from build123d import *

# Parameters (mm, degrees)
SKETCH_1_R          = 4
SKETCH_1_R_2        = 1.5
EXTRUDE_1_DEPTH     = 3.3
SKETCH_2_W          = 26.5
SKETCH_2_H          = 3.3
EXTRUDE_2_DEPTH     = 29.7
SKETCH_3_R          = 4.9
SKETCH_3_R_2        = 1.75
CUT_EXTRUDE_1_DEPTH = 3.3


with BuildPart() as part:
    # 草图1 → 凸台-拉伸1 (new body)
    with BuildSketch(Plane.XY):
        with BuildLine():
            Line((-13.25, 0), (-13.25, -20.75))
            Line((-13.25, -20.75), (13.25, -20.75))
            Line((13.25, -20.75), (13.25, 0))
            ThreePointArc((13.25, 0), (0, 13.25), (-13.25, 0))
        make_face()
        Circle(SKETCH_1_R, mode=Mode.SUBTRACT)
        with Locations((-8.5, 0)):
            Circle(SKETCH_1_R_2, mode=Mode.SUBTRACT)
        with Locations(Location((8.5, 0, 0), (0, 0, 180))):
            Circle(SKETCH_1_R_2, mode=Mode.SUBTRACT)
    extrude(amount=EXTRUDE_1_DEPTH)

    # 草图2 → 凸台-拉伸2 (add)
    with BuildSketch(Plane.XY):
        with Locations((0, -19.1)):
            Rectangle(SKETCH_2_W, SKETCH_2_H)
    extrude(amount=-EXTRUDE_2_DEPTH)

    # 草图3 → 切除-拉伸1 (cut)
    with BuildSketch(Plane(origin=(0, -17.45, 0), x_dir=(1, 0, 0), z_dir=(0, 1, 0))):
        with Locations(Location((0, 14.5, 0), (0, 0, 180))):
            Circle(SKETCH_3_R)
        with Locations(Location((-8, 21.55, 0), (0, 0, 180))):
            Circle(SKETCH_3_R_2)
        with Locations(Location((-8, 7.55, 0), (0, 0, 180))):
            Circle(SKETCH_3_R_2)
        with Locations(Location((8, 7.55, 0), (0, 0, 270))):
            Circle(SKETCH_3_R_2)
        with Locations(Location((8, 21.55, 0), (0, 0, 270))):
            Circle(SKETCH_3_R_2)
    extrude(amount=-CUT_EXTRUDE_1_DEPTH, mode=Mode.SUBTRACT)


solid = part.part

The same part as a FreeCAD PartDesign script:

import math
import FreeCAD as App
import Part
import Sketcher

doc = App.newDocument("Part")
body = doc.addObject("PartDesign::Body", "Body")

# Sketch on XY plane
sketch1 = body.newObject("Sketcher::SketchObject", "Sketch")
sketch1.AttachmentSupport = (doc.getObject("XY_Plane"), [""])
sketch1.MapMode = "FlatFace"
sketch1.addGeometry([
    Part.LineSegment(App.Vector(-13.25, 0, 0), App.Vector(-13.25, -20.75, 0)),  # 0
    Part.LineSegment(App.Vector(-13.25, -20.75, 0), App.Vector(13.25, -20.75, 0)),  # 1
    Part.LineSegment(App.Vector(13.25, -20.75, 0), App.Vector(13.25, 0, 0)),  # 2
    Part.ArcOfCircle(Part.Circle(App.Vector(0, 0, 0), App.Vector(0, 0, 1), 13.25), math.radians(0), math.radians(180)),  # 3
    Part.Circle(App.Vector(-8.5, 0, 0), App.Vector(0, 0, 1), 1.5),  # 4
    Part.Circle(App.Vector(0, 0, 0), App.Vector(0, 0, 1), 4),  # 5
    Part.Circle(App.Vector(8.5, 0, 0), App.Vector(0, 0, 1), 1.5),  # 6
], False)
sketch1.addConstraint([
    Sketcher.Constraint("Coincident", 0, 2, 1, 1),
    Sketcher.Constraint("Coincident", 1, 2, 2, 1),
    Sketcher.Constraint("Tangent", 2, 2, 3, 1),
    Sketcher.Constraint("Tangent", 3, 2, 0, 1),
    Sketcher.Constraint("Vertical", 0),
    Sketcher.Constraint("Horizontal", 1),
    Sketcher.Constraint("Vertical", 2),
    Sketcher.Constraint("Coincident", 3, 3, -1, 1),
    Sketcher.Constraint("Coincident", 5, 3, -1, 1),
    Sketcher.Constraint("Equal", 4, 6),
    Sketcher.Constraint("Symmetric", 4, 3, 6, 3, -1, 1),
    Sketcher.Constraint("PointOnObject", 4, 3, -1),
    Sketcher.Constraint("Diameter", 4, 3.0),
    Sketcher.Constraint("Diameter", 5, 8.0),
    Sketcher.Constraint("Radius", 3, 13.25),
    Sketcher.Constraint("DistanceX", 4, 3, 6, 3, 17.0),
    Sketcher.Constraint("DistanceY", 0, 2, 0, 1, 20.75),
])
pad1 = body.newObject("PartDesign::Pad", "Pad")
pad1.Profile = sketch1
pad1.Length = 3.3

# Sketch on XY plane
sketch2 = body.newObject("Sketcher::SketchObject", "Sketch001")
sketch2.AttachmentSupport = (doc.getObject("XY_Plane"), [""])
sketch2.MapMode = "FlatFace"
sketch2.addGeometry([
    Part.LineSegment(App.Vector(-13.25, -17.45, 0), App.Vector(-13.25, -20.75, 0)),
    Part.LineSegment(App.Vector(-13.25, -20.75, 0), App.Vector(13.25, -20.75, 0)),
    Part.LineSegment(App.Vector(13.25, -20.75, 0), App.Vector(13.25, -17.45, 0)),
    Part.LineSegment(App.Vector(13.25, -17.45, 0), App.Vector(-13.25, -17.45, 0)),
], False)
sketch2.addConstraint([
    Sketcher.Constraint("Coincident", 0, 2, 1, 1),
    Sketcher.Constraint("Coincident", 1, 2, 2, 1),
    Sketcher.Constraint("Coincident", 2, 2, 3, 1),
    Sketcher.Constraint("Coincident", 3, 2, 0, 1),
    Sketcher.Constraint("Vertical", 0),
    Sketcher.Constraint("Horizontal", 1),
    Sketcher.Constraint("Vertical", 2),
    Sketcher.Constraint("Horizontal", 3),
    Sketcher.Constraint("DistanceX", 1, 1, 1, 2, 26.5),
    Sketcher.Constraint("DistanceY", 0, 2, 0, 1, 3.3),
    Sketcher.Constraint("DistanceX", 0, 2, -1, 1, 13.25),
    Sketcher.Constraint("DistanceY", 0, 2, -1, 1, 20.75),
])
pad2 = body.newObject("PartDesign::Pad", "Pad001")
pad2.Profile = sketch2
pad2.Length = 29.7
pad2.Reversed = True

# Sketch on XZ plane
sketch3 = body.newObject("Sketcher::SketchObject", "Sketch002")
sketch3.AttachmentSupport = (doc.getObject("XZ_Plane"), [""])
sketch3.MapMode = "FlatFace"
sketch3.AttachmentOffset = App.Placement(App.Vector(0, 0, 17.45), App.Rotation())
sketch3.addGeometry([
    Part.Circle(App.Vector(0, -14.5, 0), App.Vector(0, 0, 1), 4.9),  # 0
    Part.Circle(App.Vector(-8, -21.55, 0), App.Vector(0, 0, 1), 1.75),  # 1
    Part.Circle(App.Vector(-8, -7.55, 0), App.Vector(0, 0, 1), 1.75),  # 2
    Part.Circle(App.Vector(8, -7.55, 0), App.Vector(0, 0, 1), 1.75),  # 3
    Part.Circle(App.Vector(8, -21.55, 0), App.Vector(0, 0, 1), 1.75),  # 4
], False)
sketch3.addConstraint([
    Sketcher.Constraint("Equal", 1, 2),
    Sketcher.Constraint("Equal", 2, 3),
    Sketcher.Constraint("Equal", 3, 4),
    Sketcher.Constraint("Symmetric", 2, 3, 3, 3, -2),
    Sketcher.Constraint("Symmetric", 1, 3, 4, 3, -2),
    Sketcher.Constraint("PointOnObject", 0, 3, -2),
    Sketcher.Constraint("Vertical", 1, 3, 2, 3),
    Sketcher.Constraint("Diameter", 0, 9.8),
    Sketcher.Constraint("Diameter", 1, 3.5),
    Sketcher.Constraint("DistanceX", 1, 3, -1, 1, 8.0),
    Sketcher.Constraint("DistanceY", 1, 3, 2, 3, 14.0),
    Sketcher.Constraint("DistanceY", 0, 3, -1, 1, 14.5),
    Sketcher.Constraint("DistanceY", 1, 3, -1, 1, 21.55),
])
pocket1 = body.newObject("PartDesign::Pocket", "Pocket")
pocket1.Profile = sketch3
pocket1.Length = 3.3
pocket1.Reversed = True

doc.recompute()
